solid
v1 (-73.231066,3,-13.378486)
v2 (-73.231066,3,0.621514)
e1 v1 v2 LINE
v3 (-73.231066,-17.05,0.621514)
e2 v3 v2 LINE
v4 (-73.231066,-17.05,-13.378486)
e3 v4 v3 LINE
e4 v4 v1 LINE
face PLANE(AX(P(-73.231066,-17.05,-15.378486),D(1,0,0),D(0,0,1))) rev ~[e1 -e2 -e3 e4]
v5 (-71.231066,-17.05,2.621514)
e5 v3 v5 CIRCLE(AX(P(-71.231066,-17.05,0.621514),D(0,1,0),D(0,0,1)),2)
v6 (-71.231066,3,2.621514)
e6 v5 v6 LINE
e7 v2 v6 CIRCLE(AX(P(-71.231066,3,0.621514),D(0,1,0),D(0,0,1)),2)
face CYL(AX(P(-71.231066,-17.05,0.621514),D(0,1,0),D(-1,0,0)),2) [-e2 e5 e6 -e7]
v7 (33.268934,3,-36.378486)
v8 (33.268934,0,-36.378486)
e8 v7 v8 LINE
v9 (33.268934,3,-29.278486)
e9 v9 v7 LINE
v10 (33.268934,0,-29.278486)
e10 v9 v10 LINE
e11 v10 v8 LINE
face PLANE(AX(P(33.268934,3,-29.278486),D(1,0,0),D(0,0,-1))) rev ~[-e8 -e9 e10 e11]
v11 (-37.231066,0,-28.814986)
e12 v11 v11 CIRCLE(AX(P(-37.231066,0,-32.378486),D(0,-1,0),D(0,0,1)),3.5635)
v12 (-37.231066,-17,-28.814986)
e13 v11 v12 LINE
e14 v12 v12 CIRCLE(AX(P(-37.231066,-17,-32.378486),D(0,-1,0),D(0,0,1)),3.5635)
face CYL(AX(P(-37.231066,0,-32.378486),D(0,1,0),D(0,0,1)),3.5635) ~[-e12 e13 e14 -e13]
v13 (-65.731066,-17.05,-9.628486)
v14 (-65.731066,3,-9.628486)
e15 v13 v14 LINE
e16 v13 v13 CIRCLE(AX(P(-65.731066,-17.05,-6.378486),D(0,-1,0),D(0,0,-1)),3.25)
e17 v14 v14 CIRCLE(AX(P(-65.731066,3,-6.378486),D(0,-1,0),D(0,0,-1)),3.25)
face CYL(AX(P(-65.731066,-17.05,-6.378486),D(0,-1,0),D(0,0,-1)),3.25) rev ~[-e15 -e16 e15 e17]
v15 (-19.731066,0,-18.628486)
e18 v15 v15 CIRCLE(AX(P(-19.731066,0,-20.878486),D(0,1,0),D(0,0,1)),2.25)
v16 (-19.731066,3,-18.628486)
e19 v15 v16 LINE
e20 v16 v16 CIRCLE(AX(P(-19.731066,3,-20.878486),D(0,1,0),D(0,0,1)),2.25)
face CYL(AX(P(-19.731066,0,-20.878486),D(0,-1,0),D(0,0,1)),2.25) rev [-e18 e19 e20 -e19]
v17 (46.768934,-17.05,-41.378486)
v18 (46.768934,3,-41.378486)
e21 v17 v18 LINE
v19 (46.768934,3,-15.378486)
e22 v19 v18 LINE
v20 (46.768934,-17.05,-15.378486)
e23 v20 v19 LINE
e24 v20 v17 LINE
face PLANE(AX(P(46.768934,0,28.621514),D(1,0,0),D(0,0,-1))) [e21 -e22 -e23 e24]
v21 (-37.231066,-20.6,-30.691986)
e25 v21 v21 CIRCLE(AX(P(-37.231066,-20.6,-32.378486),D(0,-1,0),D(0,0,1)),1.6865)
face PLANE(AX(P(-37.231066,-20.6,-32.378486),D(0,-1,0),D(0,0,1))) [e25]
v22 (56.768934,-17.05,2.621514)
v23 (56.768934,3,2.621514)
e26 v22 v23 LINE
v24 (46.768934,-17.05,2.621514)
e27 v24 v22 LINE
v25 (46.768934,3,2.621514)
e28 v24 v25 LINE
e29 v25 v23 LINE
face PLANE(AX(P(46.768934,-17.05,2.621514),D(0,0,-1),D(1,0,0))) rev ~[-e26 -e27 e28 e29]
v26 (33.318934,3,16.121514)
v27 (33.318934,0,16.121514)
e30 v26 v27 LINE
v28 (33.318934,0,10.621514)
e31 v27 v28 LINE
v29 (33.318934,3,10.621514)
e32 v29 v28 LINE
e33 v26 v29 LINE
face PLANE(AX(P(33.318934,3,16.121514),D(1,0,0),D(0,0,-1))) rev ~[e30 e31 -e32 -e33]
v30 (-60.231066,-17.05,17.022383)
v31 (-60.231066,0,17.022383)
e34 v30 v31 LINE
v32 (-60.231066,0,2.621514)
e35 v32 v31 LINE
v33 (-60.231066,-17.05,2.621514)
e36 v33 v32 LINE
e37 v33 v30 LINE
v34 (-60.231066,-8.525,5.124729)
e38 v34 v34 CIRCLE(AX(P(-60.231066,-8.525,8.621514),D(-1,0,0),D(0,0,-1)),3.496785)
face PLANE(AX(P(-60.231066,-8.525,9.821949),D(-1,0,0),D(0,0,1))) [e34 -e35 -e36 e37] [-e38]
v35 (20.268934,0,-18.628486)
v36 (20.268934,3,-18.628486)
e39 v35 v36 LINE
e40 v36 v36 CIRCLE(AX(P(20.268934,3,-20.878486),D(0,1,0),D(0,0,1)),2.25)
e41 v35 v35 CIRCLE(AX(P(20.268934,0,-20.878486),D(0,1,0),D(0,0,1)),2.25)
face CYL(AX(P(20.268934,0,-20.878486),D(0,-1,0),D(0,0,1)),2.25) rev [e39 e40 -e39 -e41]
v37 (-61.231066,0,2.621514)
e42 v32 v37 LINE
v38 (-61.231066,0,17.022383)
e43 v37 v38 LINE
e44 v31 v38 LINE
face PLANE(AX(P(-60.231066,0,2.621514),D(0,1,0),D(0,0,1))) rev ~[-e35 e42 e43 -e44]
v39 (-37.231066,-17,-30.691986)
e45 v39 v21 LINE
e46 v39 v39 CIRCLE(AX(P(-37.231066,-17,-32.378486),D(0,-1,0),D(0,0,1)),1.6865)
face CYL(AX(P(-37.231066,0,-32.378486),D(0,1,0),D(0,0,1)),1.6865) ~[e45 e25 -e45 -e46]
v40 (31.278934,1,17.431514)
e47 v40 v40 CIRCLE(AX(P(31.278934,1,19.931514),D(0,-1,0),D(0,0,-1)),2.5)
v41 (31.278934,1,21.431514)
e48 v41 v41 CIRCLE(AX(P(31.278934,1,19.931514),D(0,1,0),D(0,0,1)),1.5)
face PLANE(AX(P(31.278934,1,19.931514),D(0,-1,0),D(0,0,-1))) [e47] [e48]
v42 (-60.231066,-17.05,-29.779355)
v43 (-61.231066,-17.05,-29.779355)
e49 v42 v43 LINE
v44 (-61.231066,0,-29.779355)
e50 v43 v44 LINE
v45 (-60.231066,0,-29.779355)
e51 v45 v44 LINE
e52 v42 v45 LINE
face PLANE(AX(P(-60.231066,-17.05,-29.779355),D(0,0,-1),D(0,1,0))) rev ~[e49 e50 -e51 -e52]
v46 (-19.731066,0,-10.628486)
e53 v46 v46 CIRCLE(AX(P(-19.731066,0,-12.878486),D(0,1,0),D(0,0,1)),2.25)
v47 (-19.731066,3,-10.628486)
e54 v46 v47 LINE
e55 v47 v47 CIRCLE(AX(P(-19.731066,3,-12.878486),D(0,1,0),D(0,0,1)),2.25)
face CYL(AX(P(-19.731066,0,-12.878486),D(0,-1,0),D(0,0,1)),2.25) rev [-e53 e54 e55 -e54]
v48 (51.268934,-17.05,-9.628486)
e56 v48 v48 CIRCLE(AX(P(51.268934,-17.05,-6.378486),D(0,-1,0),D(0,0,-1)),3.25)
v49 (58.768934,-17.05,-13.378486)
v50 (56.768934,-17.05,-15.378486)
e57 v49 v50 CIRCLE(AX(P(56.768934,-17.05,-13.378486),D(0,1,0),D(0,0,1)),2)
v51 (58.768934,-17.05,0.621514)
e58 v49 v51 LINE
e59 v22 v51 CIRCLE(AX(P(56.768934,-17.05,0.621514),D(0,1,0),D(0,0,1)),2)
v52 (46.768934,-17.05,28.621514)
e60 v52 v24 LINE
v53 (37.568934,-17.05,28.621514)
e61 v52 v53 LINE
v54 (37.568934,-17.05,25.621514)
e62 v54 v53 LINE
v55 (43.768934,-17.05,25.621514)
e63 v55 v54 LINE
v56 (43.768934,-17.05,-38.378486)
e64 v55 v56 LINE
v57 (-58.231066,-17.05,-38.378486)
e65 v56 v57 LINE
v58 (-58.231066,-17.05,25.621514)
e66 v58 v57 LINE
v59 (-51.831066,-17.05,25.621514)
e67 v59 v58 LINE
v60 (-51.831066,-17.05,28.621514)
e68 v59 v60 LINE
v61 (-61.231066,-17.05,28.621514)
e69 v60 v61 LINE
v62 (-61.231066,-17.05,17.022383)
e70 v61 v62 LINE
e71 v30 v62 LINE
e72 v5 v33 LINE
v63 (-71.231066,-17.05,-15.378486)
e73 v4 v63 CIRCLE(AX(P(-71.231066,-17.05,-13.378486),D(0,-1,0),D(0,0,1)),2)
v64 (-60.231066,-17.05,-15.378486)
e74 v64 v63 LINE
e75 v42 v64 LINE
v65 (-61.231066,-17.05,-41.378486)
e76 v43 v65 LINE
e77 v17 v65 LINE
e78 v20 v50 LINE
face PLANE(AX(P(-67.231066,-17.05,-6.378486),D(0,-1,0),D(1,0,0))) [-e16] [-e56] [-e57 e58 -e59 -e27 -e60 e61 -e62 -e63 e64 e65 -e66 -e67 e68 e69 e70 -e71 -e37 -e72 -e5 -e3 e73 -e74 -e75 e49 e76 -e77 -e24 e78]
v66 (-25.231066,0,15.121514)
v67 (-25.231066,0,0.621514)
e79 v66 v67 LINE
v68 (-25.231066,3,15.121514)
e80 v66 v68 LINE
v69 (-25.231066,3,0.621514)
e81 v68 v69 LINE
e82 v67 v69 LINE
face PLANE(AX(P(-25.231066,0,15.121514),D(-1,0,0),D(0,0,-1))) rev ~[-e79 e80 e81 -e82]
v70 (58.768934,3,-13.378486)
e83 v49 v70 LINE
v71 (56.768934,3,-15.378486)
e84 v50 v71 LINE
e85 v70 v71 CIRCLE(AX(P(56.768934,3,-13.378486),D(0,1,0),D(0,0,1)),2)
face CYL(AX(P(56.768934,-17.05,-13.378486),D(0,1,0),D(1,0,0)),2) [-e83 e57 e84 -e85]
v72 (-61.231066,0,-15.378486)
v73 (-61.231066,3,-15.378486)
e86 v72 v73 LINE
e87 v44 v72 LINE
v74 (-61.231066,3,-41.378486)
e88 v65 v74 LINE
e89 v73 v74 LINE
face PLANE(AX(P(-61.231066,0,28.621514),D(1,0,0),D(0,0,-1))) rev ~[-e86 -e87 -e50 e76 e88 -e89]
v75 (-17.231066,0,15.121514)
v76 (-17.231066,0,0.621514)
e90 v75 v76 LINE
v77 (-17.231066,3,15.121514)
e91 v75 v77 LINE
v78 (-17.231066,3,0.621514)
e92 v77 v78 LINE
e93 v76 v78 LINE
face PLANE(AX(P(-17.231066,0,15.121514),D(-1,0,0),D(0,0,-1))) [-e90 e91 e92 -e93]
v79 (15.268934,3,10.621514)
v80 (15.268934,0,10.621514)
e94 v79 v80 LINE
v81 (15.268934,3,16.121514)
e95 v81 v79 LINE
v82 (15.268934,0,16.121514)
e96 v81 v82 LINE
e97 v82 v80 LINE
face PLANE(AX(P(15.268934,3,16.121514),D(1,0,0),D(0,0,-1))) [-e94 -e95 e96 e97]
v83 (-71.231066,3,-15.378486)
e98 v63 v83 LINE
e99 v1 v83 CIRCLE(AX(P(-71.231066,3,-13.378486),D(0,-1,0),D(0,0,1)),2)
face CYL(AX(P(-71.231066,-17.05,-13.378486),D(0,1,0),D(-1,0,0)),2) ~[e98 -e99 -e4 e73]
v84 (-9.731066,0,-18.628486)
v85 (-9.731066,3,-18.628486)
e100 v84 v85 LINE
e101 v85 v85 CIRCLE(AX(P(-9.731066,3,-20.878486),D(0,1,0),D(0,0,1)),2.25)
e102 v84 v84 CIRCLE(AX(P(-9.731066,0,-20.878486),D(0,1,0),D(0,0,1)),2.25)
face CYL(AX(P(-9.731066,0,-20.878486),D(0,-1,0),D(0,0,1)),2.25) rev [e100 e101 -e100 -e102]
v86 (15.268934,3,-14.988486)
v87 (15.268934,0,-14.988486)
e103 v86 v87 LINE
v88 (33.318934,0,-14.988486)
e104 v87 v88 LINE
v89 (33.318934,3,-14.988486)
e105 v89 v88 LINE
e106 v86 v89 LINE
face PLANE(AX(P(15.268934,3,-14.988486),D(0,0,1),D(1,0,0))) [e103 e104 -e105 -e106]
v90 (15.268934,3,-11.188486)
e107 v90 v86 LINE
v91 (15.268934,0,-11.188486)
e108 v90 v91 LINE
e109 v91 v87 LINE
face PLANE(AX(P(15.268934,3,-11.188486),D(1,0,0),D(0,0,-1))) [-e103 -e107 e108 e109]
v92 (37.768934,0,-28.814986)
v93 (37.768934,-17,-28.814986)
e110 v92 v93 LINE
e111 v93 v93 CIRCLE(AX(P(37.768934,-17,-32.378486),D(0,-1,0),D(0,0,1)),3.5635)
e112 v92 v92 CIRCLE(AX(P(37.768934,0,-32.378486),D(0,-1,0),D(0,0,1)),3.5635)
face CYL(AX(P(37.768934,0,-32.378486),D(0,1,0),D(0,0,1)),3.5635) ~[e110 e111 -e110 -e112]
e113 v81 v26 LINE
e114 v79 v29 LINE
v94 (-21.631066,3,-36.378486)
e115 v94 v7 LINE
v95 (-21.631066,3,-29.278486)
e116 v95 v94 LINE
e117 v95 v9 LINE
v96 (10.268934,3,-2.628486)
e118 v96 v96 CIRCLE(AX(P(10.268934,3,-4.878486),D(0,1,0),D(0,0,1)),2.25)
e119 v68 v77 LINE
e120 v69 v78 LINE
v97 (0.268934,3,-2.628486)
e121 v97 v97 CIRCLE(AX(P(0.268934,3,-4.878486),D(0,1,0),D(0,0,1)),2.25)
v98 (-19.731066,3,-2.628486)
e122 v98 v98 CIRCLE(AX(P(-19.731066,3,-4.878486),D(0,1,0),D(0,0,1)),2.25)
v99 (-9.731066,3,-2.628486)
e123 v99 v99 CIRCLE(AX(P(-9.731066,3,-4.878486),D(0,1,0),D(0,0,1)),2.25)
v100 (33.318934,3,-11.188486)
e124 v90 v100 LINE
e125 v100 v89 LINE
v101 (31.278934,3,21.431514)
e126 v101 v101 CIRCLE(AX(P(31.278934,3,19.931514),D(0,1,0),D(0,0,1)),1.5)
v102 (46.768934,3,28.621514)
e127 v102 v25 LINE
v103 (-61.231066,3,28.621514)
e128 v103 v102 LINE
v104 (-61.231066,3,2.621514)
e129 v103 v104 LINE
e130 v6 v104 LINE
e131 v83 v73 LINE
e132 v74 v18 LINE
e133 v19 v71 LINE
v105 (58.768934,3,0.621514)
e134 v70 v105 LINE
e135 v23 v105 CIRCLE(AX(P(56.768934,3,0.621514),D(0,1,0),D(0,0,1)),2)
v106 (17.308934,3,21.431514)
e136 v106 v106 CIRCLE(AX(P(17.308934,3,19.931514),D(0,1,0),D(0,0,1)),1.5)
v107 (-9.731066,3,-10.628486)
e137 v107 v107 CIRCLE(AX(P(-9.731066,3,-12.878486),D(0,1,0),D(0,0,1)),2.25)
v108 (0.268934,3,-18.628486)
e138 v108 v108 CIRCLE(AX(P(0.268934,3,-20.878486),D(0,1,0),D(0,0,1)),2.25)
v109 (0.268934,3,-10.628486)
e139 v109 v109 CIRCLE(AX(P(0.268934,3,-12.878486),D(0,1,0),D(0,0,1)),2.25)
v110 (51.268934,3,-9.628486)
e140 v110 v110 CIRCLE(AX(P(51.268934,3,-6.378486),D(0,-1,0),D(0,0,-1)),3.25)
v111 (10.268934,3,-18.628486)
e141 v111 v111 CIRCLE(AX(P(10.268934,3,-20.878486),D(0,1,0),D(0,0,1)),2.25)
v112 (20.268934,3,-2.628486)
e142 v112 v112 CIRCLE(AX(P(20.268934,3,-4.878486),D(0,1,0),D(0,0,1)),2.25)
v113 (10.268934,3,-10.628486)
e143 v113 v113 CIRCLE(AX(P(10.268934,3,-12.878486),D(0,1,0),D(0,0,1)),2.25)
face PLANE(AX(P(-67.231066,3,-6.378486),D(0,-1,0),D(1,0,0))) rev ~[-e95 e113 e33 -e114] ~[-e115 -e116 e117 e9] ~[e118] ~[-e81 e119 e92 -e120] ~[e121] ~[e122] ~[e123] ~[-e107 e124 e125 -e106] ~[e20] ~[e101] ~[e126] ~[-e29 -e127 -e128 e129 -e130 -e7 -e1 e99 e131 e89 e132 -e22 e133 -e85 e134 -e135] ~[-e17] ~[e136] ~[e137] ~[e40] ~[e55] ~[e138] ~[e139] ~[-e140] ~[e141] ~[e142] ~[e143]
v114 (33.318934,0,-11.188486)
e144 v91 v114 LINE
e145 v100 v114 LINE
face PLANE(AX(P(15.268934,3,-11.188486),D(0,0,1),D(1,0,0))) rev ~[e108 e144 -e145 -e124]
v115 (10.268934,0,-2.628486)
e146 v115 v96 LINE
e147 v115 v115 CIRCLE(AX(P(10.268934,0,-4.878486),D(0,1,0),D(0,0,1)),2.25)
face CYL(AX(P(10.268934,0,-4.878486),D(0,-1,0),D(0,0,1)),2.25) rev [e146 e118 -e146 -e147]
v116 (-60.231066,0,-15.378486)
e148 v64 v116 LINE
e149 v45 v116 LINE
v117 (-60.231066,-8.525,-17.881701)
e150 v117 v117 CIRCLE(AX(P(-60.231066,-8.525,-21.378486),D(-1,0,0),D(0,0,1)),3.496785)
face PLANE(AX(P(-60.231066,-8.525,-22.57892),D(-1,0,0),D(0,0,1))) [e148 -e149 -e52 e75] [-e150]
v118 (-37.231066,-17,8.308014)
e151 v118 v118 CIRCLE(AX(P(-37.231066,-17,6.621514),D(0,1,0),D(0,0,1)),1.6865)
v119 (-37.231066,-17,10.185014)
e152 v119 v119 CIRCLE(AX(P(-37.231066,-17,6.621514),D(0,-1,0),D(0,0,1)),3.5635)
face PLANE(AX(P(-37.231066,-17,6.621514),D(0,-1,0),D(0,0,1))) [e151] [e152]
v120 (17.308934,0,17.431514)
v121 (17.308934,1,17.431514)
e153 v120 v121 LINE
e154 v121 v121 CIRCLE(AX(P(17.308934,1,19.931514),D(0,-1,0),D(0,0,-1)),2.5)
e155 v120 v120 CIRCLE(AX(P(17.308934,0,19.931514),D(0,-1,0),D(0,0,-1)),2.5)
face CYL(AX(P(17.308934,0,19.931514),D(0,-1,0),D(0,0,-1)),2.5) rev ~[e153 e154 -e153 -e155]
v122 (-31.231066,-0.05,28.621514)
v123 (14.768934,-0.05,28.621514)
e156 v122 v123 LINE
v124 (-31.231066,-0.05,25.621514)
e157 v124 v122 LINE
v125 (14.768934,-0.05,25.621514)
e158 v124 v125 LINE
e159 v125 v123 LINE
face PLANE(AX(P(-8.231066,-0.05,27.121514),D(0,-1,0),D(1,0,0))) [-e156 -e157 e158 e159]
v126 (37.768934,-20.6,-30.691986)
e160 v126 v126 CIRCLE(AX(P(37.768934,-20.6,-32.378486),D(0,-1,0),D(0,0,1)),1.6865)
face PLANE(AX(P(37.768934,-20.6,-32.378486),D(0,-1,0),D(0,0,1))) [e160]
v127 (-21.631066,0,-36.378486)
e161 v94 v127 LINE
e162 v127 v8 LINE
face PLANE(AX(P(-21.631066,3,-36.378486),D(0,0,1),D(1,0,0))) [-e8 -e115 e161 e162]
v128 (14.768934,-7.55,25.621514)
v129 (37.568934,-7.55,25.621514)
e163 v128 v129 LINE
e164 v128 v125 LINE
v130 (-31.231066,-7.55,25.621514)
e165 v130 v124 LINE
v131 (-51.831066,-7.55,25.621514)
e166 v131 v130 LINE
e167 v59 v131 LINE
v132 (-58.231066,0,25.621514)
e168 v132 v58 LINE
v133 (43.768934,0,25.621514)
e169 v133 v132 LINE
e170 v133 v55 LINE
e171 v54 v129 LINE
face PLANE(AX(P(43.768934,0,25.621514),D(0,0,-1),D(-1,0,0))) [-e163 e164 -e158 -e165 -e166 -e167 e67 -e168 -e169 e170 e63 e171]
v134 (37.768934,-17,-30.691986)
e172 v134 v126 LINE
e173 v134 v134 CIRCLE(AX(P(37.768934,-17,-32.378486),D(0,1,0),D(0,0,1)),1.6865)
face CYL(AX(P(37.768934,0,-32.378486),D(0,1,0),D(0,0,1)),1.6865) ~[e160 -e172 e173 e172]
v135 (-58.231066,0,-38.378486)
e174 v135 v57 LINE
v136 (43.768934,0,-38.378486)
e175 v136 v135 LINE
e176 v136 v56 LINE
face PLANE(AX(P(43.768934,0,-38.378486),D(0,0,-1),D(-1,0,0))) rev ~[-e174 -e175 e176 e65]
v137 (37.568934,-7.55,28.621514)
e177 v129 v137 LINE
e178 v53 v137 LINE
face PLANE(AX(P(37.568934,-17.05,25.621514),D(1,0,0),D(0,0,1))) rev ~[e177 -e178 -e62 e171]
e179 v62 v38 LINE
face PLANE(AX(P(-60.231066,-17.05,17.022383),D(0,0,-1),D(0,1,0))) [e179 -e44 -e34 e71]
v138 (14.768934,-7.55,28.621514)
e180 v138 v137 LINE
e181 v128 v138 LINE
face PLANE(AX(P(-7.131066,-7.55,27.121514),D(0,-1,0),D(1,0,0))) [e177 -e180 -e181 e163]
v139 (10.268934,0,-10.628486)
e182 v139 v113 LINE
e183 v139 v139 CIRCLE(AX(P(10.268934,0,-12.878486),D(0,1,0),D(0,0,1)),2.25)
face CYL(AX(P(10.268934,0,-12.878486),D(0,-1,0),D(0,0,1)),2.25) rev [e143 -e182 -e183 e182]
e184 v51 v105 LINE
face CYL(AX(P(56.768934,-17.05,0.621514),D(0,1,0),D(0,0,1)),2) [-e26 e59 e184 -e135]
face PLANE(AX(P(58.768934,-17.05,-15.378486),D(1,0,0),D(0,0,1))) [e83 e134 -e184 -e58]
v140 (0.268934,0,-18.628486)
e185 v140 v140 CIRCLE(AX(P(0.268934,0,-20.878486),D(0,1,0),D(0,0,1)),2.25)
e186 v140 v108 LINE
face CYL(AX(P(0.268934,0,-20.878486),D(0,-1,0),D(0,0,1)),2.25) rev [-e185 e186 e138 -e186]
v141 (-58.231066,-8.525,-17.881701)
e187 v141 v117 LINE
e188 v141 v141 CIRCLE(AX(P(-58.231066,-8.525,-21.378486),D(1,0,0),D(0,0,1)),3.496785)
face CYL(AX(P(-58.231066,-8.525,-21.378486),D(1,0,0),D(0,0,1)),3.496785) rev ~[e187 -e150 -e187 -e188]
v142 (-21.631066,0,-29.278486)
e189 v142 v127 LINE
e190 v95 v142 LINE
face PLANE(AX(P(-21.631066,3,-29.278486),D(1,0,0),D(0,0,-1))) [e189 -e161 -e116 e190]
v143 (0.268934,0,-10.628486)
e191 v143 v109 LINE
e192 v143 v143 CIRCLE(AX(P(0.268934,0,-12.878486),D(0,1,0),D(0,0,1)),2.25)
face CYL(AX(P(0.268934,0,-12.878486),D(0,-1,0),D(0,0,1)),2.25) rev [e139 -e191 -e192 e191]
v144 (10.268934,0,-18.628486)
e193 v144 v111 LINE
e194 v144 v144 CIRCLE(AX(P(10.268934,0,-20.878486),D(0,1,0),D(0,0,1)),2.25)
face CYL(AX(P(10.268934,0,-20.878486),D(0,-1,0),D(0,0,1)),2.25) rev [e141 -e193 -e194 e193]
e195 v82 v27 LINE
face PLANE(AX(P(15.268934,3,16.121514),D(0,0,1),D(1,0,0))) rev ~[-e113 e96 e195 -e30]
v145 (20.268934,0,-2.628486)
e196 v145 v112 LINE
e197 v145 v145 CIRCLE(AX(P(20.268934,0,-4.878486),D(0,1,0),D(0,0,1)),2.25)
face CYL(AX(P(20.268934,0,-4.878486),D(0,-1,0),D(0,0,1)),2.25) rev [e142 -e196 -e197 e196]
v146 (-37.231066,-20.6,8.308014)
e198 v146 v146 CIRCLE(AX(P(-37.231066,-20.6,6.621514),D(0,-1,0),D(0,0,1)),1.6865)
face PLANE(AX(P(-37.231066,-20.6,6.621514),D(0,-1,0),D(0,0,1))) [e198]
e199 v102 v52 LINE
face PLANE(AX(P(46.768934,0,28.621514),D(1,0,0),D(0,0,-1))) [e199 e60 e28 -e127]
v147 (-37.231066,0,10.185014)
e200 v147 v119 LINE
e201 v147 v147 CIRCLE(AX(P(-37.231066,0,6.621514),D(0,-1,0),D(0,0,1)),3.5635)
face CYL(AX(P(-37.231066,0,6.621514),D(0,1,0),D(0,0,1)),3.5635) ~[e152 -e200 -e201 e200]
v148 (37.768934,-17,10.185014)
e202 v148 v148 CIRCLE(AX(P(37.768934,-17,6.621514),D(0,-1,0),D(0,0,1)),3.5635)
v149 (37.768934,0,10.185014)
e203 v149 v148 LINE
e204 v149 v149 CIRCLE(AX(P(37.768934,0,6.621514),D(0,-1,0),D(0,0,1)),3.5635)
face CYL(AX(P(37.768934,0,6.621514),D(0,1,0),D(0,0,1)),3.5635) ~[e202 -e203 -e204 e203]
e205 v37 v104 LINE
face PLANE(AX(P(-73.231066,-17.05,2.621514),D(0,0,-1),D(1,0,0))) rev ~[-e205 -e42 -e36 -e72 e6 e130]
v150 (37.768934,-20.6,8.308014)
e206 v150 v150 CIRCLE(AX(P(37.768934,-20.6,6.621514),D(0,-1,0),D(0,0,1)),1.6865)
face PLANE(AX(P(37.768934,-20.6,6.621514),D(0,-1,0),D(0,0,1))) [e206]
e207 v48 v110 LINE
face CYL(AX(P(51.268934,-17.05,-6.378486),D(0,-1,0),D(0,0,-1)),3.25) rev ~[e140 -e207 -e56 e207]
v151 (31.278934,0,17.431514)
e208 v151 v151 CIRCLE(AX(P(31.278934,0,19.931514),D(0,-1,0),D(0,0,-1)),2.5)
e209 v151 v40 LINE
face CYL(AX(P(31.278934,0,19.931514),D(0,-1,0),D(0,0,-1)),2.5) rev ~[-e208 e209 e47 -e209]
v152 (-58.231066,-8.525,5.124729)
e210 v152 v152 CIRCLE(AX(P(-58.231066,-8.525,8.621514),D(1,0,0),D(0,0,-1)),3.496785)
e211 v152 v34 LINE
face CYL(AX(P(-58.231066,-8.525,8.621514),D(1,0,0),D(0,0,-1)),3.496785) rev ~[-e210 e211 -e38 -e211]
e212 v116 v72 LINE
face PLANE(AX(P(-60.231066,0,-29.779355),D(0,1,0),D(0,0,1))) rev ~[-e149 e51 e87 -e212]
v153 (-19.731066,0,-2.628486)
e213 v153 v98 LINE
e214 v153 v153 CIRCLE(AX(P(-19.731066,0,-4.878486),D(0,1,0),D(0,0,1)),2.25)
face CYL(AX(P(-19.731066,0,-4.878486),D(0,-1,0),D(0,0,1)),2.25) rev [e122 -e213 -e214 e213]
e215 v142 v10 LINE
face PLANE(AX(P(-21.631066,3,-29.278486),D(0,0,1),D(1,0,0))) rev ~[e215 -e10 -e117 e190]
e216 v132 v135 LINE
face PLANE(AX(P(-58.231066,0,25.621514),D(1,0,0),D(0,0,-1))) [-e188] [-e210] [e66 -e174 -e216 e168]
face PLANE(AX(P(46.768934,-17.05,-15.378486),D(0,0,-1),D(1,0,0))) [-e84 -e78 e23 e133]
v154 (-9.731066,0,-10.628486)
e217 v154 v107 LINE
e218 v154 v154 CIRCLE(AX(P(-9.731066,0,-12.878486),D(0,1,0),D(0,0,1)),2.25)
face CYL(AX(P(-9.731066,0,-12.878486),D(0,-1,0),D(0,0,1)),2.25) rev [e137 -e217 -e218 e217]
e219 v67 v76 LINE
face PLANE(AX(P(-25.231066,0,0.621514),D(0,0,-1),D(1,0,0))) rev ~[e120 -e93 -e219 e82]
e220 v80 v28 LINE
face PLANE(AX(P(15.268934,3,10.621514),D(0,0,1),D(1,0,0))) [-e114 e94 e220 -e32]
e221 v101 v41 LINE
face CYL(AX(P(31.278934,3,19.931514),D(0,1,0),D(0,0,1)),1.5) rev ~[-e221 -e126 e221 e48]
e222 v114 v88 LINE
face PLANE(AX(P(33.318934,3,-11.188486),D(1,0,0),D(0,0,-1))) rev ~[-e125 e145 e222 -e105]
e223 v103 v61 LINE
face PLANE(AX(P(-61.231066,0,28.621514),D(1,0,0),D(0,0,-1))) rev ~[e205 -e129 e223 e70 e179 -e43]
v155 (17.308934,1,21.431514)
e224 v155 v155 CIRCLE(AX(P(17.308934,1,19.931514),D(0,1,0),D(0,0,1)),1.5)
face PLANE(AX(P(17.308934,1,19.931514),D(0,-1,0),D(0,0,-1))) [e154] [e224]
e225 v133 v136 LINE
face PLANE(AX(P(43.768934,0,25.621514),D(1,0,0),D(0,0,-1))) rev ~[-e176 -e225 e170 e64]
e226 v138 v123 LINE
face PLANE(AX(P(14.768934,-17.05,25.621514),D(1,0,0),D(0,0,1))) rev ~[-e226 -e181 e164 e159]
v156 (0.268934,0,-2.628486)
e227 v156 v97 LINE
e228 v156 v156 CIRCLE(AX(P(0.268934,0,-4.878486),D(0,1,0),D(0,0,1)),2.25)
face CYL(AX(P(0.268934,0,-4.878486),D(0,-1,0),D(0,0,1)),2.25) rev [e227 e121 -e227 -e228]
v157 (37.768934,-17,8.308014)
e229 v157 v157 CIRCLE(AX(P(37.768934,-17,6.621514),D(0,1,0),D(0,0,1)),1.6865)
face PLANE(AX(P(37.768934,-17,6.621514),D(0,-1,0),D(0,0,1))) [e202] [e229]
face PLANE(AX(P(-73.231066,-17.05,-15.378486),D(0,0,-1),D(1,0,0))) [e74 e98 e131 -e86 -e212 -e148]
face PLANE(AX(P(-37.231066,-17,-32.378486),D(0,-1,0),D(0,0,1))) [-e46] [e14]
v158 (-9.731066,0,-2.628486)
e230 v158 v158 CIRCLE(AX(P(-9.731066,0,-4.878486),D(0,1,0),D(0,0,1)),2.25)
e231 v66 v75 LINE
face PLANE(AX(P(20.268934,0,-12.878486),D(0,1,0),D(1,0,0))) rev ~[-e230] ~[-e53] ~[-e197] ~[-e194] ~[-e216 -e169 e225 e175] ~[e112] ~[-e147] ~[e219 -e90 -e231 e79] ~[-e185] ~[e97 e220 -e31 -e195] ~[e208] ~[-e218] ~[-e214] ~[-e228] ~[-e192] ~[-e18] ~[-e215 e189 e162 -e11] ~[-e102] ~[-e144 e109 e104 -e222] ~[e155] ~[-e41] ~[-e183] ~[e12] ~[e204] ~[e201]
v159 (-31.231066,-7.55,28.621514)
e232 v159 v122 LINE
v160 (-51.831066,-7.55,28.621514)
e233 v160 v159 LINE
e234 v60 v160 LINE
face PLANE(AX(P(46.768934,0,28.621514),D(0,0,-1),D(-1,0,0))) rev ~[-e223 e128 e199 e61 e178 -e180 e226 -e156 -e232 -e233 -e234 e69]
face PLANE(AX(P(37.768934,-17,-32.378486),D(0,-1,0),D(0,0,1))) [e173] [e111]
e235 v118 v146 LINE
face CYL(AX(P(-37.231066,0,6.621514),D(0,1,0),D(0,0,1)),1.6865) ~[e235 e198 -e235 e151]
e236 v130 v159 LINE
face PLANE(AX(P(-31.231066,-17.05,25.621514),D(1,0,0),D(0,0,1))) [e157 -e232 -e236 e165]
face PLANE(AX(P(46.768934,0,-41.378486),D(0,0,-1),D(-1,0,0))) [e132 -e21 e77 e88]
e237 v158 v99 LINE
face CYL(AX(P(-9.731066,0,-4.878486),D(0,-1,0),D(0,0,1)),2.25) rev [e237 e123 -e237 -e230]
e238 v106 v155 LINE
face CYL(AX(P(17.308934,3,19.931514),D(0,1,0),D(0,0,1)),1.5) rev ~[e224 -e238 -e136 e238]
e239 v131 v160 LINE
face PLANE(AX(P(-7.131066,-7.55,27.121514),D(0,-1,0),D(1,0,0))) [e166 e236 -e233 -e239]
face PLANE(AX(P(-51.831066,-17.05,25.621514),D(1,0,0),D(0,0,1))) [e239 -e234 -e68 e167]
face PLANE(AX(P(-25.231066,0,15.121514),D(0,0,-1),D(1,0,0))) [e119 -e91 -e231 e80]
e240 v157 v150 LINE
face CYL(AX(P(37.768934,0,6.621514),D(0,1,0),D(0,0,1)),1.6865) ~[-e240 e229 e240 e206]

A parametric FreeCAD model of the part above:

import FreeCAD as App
import Part
import Sketcher


def edges_at(feature, points):
    """Names of the edges that pass closest to the given points."""
    edges = feature.Shape.Edges
    near = lambda p: min(range(len(edges)), key=lambda i: edges[i].distToShape(Part.Vertex(*p))[0])
    return sorted({f"Edge{near(p) + 1}" for p in points})

doc = App.newDocument("Part")
body = doc.addObject("PartDesign::Body", "Body")

# Sketch on XZ plane
sketch1 = body.newObject("Sketcher::SketchObject", "Sketch")
sketch1.AttachmentSupport = (doc.getObject("XZ_Plane"), [""])
sketch1.MapMode = "FlatFace"
sketch1.addGeometry([
    Part.LineSegment(App.Vector(-61.2, -41.4, 0), App.Vector(-61.2, 28.6, 0)),  # 0
    Part.LineSegment(App.Vector(-61.2, 28.6, 0), App.Vector(46.8, 28.6, 0)),  # 1
    Part.LineSegment(App.Vector(46.8, 28.6, 0), App.Vector(46.8, -41.4, 0)),  # 2
    Part.LineSegment(App.Vector(46.8, -41.4, 0), App.Vector(-61.2, -41.4, 0)),  # 3
    Part.LineSegment(App.Vector(-17.2, 15.1, 0), App.Vector(-25.2, 15.1, 0)),  # 4
    Part.LineSegment(App.Vector(-25.2, 15.1, 0), App.Vector(-25.2, 0.6, 0)),  # 5
    Part.LineSegment(App.Vector(-25.2, 0.6, 0), App.Vector(-17.2, 0.6, 0)),  # 6
    Part.LineSegment(App.Vector(-17.2, 0.6, 0), App.Vector(-17.2, 15.1, 0)),  # 7
    Part.Circle(App.Vector(-19.7, -4.9, 0), App.Vector(0, 0, 1), 2.2),  # 8
    Part.Circle(App.Vector(-19.7, -12.9, 0), App.Vector(0, 0, 1), 2.2),  # 9
    Part.Circle(App.Vector(-9.7, -4.9, 0), App.Vector(0, 0, 1), 2.2),  # 10
    Part.Circle(App.Vector(-9.7, -12.9, 0), App.Vector(0, 0, 1), 2.2),  # 11
    Part.Circle(App.Vector(-19.7, -20.9, 0), App.Vector(0, 0, 1), 2.2),  # 12
    Part.Circle(App.Vector(-9.7, -20.9, 0), App.Vector(0, 0, 1), 2.2),  # 13
    Part.Circle(App.Vector(0.3, -4.9, 0), App.Vector(0, 0, 1), 2.2),  # 14
    Part.Circle(App.Vector(10.3, -4.9, 0), App.Vector(0, 0, 1), 2.2),  # 15
    Part.Circle(App.Vector(0.3, -12.9, 0), App.Vector(0, 0, 1), 2.2),  # 16
    Part.Circle(App.Vector(10.3, -12.9, 0), App.Vector(0, 0, 1), 2.2),  # 17
    Part.Circle(App.Vector(20.3, -4.9, 0), App.Vector(0, 0, 1), 2.2),  # 18
    Part.Circle(App.Vector(0.3, -20.9, 0), App.Vector(0, 0, 1), 2.2),  # 19
    Part.Circle(App.Vector(10.3, -20.9, 0), App.Vector(0, 0, 1), 2.2),  # 20
    Part.Circle(App.Vector(20.3, -20.9, 0), App.Vector(0, 0, 1), 2.2),  # 21
], False)
sketch1.addConstraint([
    Sketcher.Constraint("Coincident", 0, 2, 1, 1),
    Sketcher.Constraint("Coincident", 1, 2, 2, 1),
    Sketcher.Constraint("Coincident", 2, 2, 3, 1),
    Sketcher.Constraint("Coincident", 3, 2, 0, 1),
    Sketcher.Constraint("Coincident", 4, 2, 5, 1),
    Sketcher.Constraint("Coincident", 5, 2, 6, 1),
    Sketcher.Constraint("Coincident", 6, 2, 7, 1),
    Sketcher.Constraint("Coincident", 7, 2, 4, 1),
    Sketcher.Constraint("Vertical", 0),
    Sketcher.Constraint("Horizontal", 1),
    Sketcher.Constraint("Vertical", 2),
    Sketcher.Constraint("Horizontal", 3),
    Sketcher.Constraint("Horizontal", 4),
    Sketcher.Constraint("Vertical", 5),
    Sketcher.Constraint("Horizontal", 6),
    Sketcher.Constraint("Vertical", 7),
    Sketcher.Constraint("Equal", 8, 9),
    Sketcher.Constraint("Equal", 9, 10),
    Sketcher.Constraint("Equal", 10, 11),
    Sketcher.Constraint("Equal", 11, 12),
    Sketcher.Constraint("Equal", 12, 13),
    Sketcher.Constraint("Equal", 13, 14),
    Sketcher.Constraint("Equal", 14, 15),
    Sketcher.Constraint("Equal", 15, 16),
    Sketcher.Constraint("Equal", 16, 17),
    Sketcher.Constraint("Equal", 17, 18),
    Sketcher.Constraint("Equal", 18, 19),
    Sketcher.Constraint("Equal", 19, 20),
    Sketcher.Constraint("Equal", 20, 21),
    Sketcher.Constraint("Horizontal", 8, 3, 10, 3),
    Sketcher.Constraint("Horizontal", 9, 3, 11, 3),
    Sketcher.Constraint("Horizontal", 12, 3, 13, 3),
    Sketcher.Constraint("Horizontal", 10, 3, 14, 3),
    Sketcher.Constraint("Horizontal", 14, 3, 15, 3),
    Sketcher.Constraint("Horizontal", 11, 3, 16, 3),
    Sketcher.Constraint("Horizontal", 16, 3, 17, 3),
    Sketcher.Constraint("Horizontal", 15, 3, 18, 3),
    Sketcher.Constraint("Horizontal", 13, 3, 19, 3),
    Sketcher.Constraint("Horizontal", 19, 3, 20, 3),
    Sketcher.Constraint("Horizontal", 20, 3, 21, 3),
    Sketcher.Constraint("Vertical", 8, 3, 9, 3),
    Sketcher.Constraint("Vertical", 10, 3, 11, 3),
    Sketcher.Constraint("Vertical", 9, 3, 12, 3),
    Sketcher.Constraint("Vertical", 11, 3, 13, 3),
    Sketcher.Constraint("Vertical", 14, 3, 16, 3),
    Sketcher.Constraint("Vertical", 15, 3, 17, 3),
    Sketcher.Constraint("Vertical", 16, 3, 19, 3),
    Sketcher.Constraint("Vertical", 17, 3, 20, 3),
    Sketcher.Constraint("Vertical", 18, 3, 21, 3),
    Sketcher.Constraint("Diameter", 8, 4.5),
    Sketcher.Constraint("DistanceX", 1, 1, 1, 2, 108.0),
    Sketcher.Constraint("DistanceX", 4, 2, 4, 1, 8.0),
    Sketcher.Constraint("DistanceY", 0, 1, 0, 2, 70.0),
    Sketcher.Constraint("DistanceY", 5, 2, 5, 1, 14.5),
    Sketcher.Constraint("DistanceY", 9, 3, 8, 3, 8.0),
    Sketcher.Constraint("DistanceX", 8, 3, 10, 3, 10.0),
    Sketcher.Constraint("DistanceY", 12, 3, 9, 3, 8.0),
    Sketcher.Constraint("DistanceX", 10, 3, 14, 3, 10.0),
    Sketcher.Constraint("DistanceX", 14, 3, 15, 3, 10.0),
    Sketcher.Constraint("DistanceX", 15, 3, 18, 3, 10.0),
    Sketcher.Constraint("DistanceY", 8, 3, 4, 2, 20.0),
    Sketcher.Constraint("DistanceX", 0, 2, 8, 3, 41.5),
    Sketcher.Constraint("DistanceY", 8, 3, 0, 2, 33.5),
    Sketcher.Constraint("DistanceX", 4, 2, 8, 3, 5.5),
    Sketcher.Constraint("DistanceX", 8, 3, -1, 1, 19.731066),
    Sketcher.Constraint("DistanceY", 8, 3, -1, 1, 4.878486),
])
pad1 = body.newObject("PartDesign::Pad", "Pad")
pad1.Profile = sketch1
pad1.Length = 3
pad1.Reversed = True

# Sketch on XZ plane
sketch2 = body.newObject("Sketcher::SketchObject", "Sketch001")
sketch2.AttachmentSupport = (doc.getObject("XZ_Plane"), [""])
sketch2.MapMode = "FlatFace"
sketch2.addGeometry([
    Part.Circle(App.Vector(-37.2, -32.4, 0), App.Vector(0, 0, 1), 3.6),  # 0
    Part.Circle(App.Vector(-37.2, -32.4, 0), App.Vector(0, 0, 1), 1.7),  # 1
    Part.Circle(App.Vector(37.8, -32.4, 0), App.Vector(0, 0, 1), 3.6),  # 2
    Part.Circle(App.Vector(37.8, -32.4, 0), App.Vector(0, 0, 1), 1.7),  # 3
    Part.Circle(App.Vector(37.8, 6.6, 0), App.Vector(0, 0, 1), 3.6),  # 4
    Part.Circle(App.Vector(37.8, 6.6, 0), App.Vector(0, 0, 1), 1.7),  # 5
    Part.Circle(App.Vector(-37.2, 6.6, 0), App.Vector(0, 0, 1), 3.6),  # 6
    Part.Circle(App.Vector(-37.2, 6.6, 0), App.Vector(0, 0, 1), 1.7),  # 7
], False)
sketch2.addConstraint([
    Sketcher.Constraint("Coincident", 1, 3, 0, 3),
    Sketcher.Constraint("Coincident", 3, 3, 2, 3),
    Sketcher.Constraint("Coincident", 5, 3, 4, 3),
    Sketcher.Constraint("Coincident", 7, 3, 6, 3),
    Sketcher.Constraint("Equal", 0, 2),
    Sketcher.Constraint("Equal", 1, 3),
    Sketcher.Constraint("Equal", 2, 4),
    Sketcher.Constraint("Equal", 3, 5),
    Sketcher.Constraint("Equal", 4, 6),
    Sketcher.Constraint("Equal", 5, 7),
    Sketcher.Constraint("Horizontal", 1, 3, 2, 3),
    Sketcher.Constraint("Horizontal", 5, 3, 6, 3),
    Sketcher.Constraint("Vertical", 3, 3, 4, 3),
    Sketcher.Constraint("Vertical", 1, 3, 6, 3),
    Sketcher.Constraint("Diameter", 0, 7.127),
    Sketcher.Constraint("Diameter", 1, 3.373),
    Sketcher.Constraint("DistanceX", 0, 3, 2, 3, 75.0),
    Sketcher.Constraint("DistanceY", 2, 3, 4, 3, 39.0),
    Sketcher.Constraint("DistanceX", 0, 3, -1, 1, 37.231066),
    Sketcher.Constraint("DistanceY", 0, 3, -1, 1, 32.378486),
])
pad2 = body.newObject("PartDesign::Pad", "Pad001")
pad2.Profile = sketch2
pad2.Length = 17

# Sketch on XZ plane
sketch3 = body.newObject("Sketcher::SketchObject", "Sketch002")
sketch3.AttachmentSupport = (doc.getObject("XZ_Plane"), [""])
sketch3.MapMode = "FlatFace"
sketch3.addGeometry([
    Part.Circle(App.Vector(-37.2, -32.4, 0), App.Vector(0, 0, 1), 1.7),
    Part.Circle(App.Vector(37.8, -32.4, 0), App.Vector(0, 0, 1), 1.7),
    Part.Circle(App.Vector(37.8, 6.6, 0), App.Vector(0, 0, 1), 1.7),
    Part.Circle(App.Vector(-37.2, 6.6, 0), App.Vector(0, 0, 1), 1.7),
], False)
sketch3.addConstraint([
    Sketcher.Constraint("Equal", 0, 1),
    Sketcher.Constraint("Equal", 1, 2),
    Sketcher.Constraint("Equal", 2, 3),
    Sketcher.Constraint("Horizontal", 0, 3, 1, 3),
    Sketcher.Constraint("Horizontal", 2, 3, 3, 3),
    Sketcher.Constraint("Vertical", 1, 3, 2, 3),
    Sketcher.Constraint("Vertical", 0, 3, 3, 3),
    Sketcher.Constraint("Diameter", 0, 3.373),
    Sketcher.Constraint("DistanceX", 0, 3, 1, 3, 75.0),
    Sketcher.Constraint("DistanceY", 1, 3, 2, 3, 39.0),
    Sketcher.Constraint("DistanceX", 0, 3, -1, 1, 37.231066),
    Sketcher.Constraint("DistanceY", 0, 3, -1, 1, 32.378486),
])
pad3 = body.newObject("PartDesign::Pad", "Pad002")
pad3.Profile = sketch3
pad3.Length = 20.6

# Sketch on XZ plane
sketch4 = body.newObject("Sketcher::SketchObject", "Sketch003")
sketch4.AttachmentSupport = (doc.getObject("XZ_Plane"), [""])
sketch4.MapMode = "FlatFace"
sketch4.addGeometry([
    Part.LineSegment(App.Vector(47, -41, 0), App.Vector(47, 29, 0)),  # 0
    Part.LineSegment(App.Vector(47, 29, 0), App.Vector(-61, 29, 0)),  # 1
    Part.LineSegment(App.Vector(-61, 29, 0), App.Vector(-61, -41, 0)),  # 2
    Part.LineSegment(App.Vector(-61, -41, 0), App.Vector(47, -41, 0)),  # 3
    Part.LineSegment(App.Vector(-58, 26, 0), App.Vector(44, 26, 0)),  # 4
    Part.LineSegment(App.Vector(44, 26, 0), App.Vector(44, -38, 0)),  # 5
    Part.LineSegment(App.Vector(44, -38, 0), App.Vector(-58, -38, 0)),  # 6
    Part.LineSegment(App.Vector(-58, -38, 0), App.Vector(-58, 26, 0)),  # 7
], False)
sketch4.addConstraint([
    Sketcher.Constraint("Coincident", 0, 2, 1, 1),
    Sketcher.Constraint("Coincident", 1, 2, 2, 1),
    Sketcher.Constraint("Coincident", 2, 2, 3, 1),
    Sketcher.Constraint("Coincident", 3, 2, 0, 1),
    Sketcher.Constraint("Coincident", 4, 2, 5, 1),
    Sketcher.Constraint("Coincident", 5, 2, 6, 1),
    Sketcher.Constraint("Coincident", 6, 2, 7, 1),
    Sketcher.Constraint("Coincident", 7, 2, 4, 1),
    Sketcher.Constraint("Vertical", 0),
    Sketcher.Constraint("Horizontal", 1),
    Sketcher.Constraint("Vertical", 2),
    Sketcher.Constraint("Horizontal", 3),
    Sketcher.Constraint("Horizontal", 4),
    Sketcher.Constraint("Vertical", 5),
    Sketcher.Constraint("Horizontal", 6),
    Sketcher.Constraint("Vertical", 7),
    Sketcher.Constraint("DistanceX", 1, 2, 1, 1, 108.0),
    Sketcher.Constraint("DistanceX", 4, 1, 4, 2, 102.0),
    Sketcher.Constraint("DistanceY", 0, 1, 0, 2, 70.0),
    Sketcher.Constraint("DistanceY", 5, 2, 5, 1, 64.0),
    Sketcher.Constraint("DistanceX", 4, 2, 0, 2, 3.0),
    Sketcher.Constraint("DistanceY", 4, 2, 0, 2, 3.0),
    Sketcher.Constraint("DistanceX", -1, 1, 0, 2, 46.768934),
    Sketcher.Constraint("DistanceY", -1, 1, 0, 2, 28.621514),
])
pad4 = body.newObject("PartDesign::Pad", "Pad003")
pad4.Profile = sketch4
pad4.Length = 17.05

# Sketch on XZ plane
sketch5 = body.newObject("Sketcher::SketchObject", "Sketch004")
sketch5.AttachmentSupport = (doc.getObject("XZ_Plane"), [""])
sketch5.MapMode = "FlatFace"
sketch5.AttachmentOffset = App.Placement(App.Vector(0, 0, 17.05), App.Rotation())
sketch5.addGeometry([
    Part.LineSegment(App.Vector(-51.8, 28.6, 0), App.Vector(-51.8, 25.6, 0)),
    Part.LineSegment(App.Vector(-51.8, 25.6, 0), App.Vector(37.6, 25.6, 0)),
    Part.LineSegment(App.Vector(37.6, 25.6, 0), App.Vector(37.6, 28.6, 0)),
    Part.LineSegment(App.Vector(37.6, 28.6, 0), App.Vector(-51.8, 28.6, 0)),
], False)
sketch5.addConstraint([
    Sketcher.Constraint("Coincident", 0, 2, 1, 1),
    Sketcher.Constraint("Coincident", 1, 2, 2, 1),
    Sketcher.Constraint("Coincident", 2, 2, 3, 1),
    Sketcher.Constraint("Coincident", 3, 2, 0, 1),
    Sketcher.Constraint("Vertical", 0),
    Sketcher.Constraint("Horizontal", 1),
    Sketcher.Constraint("Vertical", 2),
    Sketcher.Constraint("Horizontal", 3),
    Sketcher.Constraint("DistanceY", 0, 2, 0, 1, 3.0),
    Sketcher.Constraint("DistanceX", 1, 1, 1, 2, 89.4),
    Sketcher.Constraint("DistanceX", 0, 2, -1, 1, 51.831066),
    Sketcher.Constraint("DistanceY", -1, 1, 0, 2, 25.621514),
])
pocket1 = body.newObject("PartDesign::Pocket", "Pocket")
pocket1.Profile = sketch5
pocket1.Length = 9.5

# Sketch on XZ plane
sketch6 = body.newObject("Sketcher::SketchObject", "Sketch005")
sketch6.AttachmentSupport = (doc.getObject("XZ_Plane"), [""])
sketch6.MapMode = "FlatFace"
sketch6.AttachmentOffset = App.Placement(App.Vector(0, 0, 17.05), App.Rotation())
sketch6.addGeometry([
    Part.LineSegment(App.Vector(-31.2, 28.6, 0), App.Vector(-31.2, 25.6, 0)),
    Part.LineSegment(App.Vector(-31.2, 25.6, 0), App.Vector(14.8, 25.6, 0)),
    Part.LineSegment(App.Vector(14.8, 25.6, 0), App.Vector(14.8, 28.6, 0)),
    Part.LineSegment(App.Vector(14.8, 28.6, 0), App.Vector(-31.2, 28.6, 0)),
], False)
sketch6.addConstraint([
    Sketcher.Constraint("Coincident", 0, 2, 1, 1),
    Sketcher.Constraint("Coincident", 1, 2, 2, 1),
    Sketcher.Constraint("Coincident", 2, 2, 3, 1),
    Sketcher.Constraint("Coincident", 3, 2, 0, 1),
    Sketcher.Constraint("Vertical", 0),
    Sketcher.Constraint("Horizontal", 1),
    Sketcher.Constraint("Vertical", 2),
    Sketcher.Constraint("Horizontal", 3),
    Sketcher.Constraint("DistanceX", 1, 1, 1, 2, 46.0),
    Sketcher.Constraint("DistanceY", 0, 2, 0, 1, 3.0),
    Sketcher.Constraint("DistanceX", 0, 2, -1, 1, 31.231066),
    Sketcher.Constraint("DistanceY", -1, 1, 0, 2, 25.621514),
])
pocket2 = body.newObject("PartDesign::Pocket", "Pocket001")
pocket2.Profile = sketch6
pocket2.Length = 17

# Sketch on XZ plane
sketch7 = body.newObject("Sketcher::SketchObject", "Sketch006")
sketch7.AttachmentSupport = (doc.getObject("XZ_Plane"), [""])
sketch7.MapMode = "FlatFace"
sketch7.AttachmentOffset = App.Placement(App.Vector(0, 0, -3), App.Rotation())
sketch7.addGeometry([
    Part.LineSegment(App.Vector(-22, -36, 0), App.Vector(-22, -29, 0)),
    Part.LineSegment(App.Vector(-22, -29, 0), App.Vector(33, -29, 0)),
    Part.LineSegment(App.Vector(33, -29, 0), App.Vector(33, -36, 0)),
    Part.LineSegment(App.Vector(33, -36, 0), App.Vector(-22, -36, 0)),
], False)
sketch7.addConstraint([
    Sketcher.Constraint("Coincident", 0, 2, 1, 1),
    Sketcher.Constraint("Coincident", 1, 2, 2, 1),
    Sketcher.Constraint("Coincident", 2, 2, 3, 1),
    Sketcher.Constraint("Coincident", 3, 2, 0, 1),
    Sketcher.Constraint("Vertical", 0),
    Sketcher.Constraint("Horizontal", 1),
    Sketcher.Constraint("Vertical", 2),
    Sketcher.Constraint("Horizontal", 3),
    Sketcher.Constraint("DistanceX", 1, 1, 1, 2, 54.9),
    Sketcher.Constraint("DistanceY", 0, 1, 0, 2, 7.1),
    Sketcher.Constraint("DistanceX", 0, 2, -1, 1, 21.631066),
    Sketcher.Constraint("DistanceY", 0, 2, -1, 1, 29.278486),
])
pocket3 = body.newObject("PartDesign::Pocket", "Pocket002")
pocket3.Profile = sketch7
pocket3.Type = "ThroughAll"
pocket3.Reversed = True

# Sketch on YZ plane
sketch8 = body.newObject("Sketcher::SketchObject", "Sketch007")
sketch8.AttachmentSupport = (doc.getObject("YZ_Plane"), [""])
sketch8.MapMode = "FlatFace"
sketch8.AttachmentOffset = App.Placement(App.Vector(0, 0, -58.231066), App.Rotation())
sketch8.addGeometry([
    Part.Circle(App.Vector(-8.5, 8.6, 0), App.Vector(0, 0, 1), 3.5),
    Part.Circle(App.Vector(-8.5, -21.4, 0), App.Vector(0, 0, 1), 3.5),
], False)
sketch8.addConstraint([
    Sketcher.Constraint("Equal", 0, 1),
    Sketcher.Constraint("Vertical", 0, 3, 1, 3),
    Sketcher.Constraint("DistanceY", 1, 3, 0, 3, 30.0),
    Sketcher.Constraint("Diameter", 0, 6.99357),
    Sketcher.Constraint("DistanceX", 0, 3, -1, 1, 8.525),
    Sketcher.Constraint("DistanceY", -1, 1, 0, 3, 8.621514),
])
pocket4 = body.newObject("PartDesign::Pocket", "Pocket003")
pocket4.Profile = sketch8
pocket4.Type = "ThroughAll"

# Sketch on YZ plane
sketch9 = body.newObject("Sketcher::SketchObject", "Sketch008")
sketch9.AttachmentSupport = (doc.getObject("YZ_Plane"), [""])
sketch9.MapMode = "FlatFace"
sketch9.AttachmentOffset = App.Placement(App.Vector(0, 0, -60.231066), App.Rotation())
sketch9.addGeometry([
    Part.LineSegment(App.Vector(0, -29.8, 0), App.Vector(-17.1, -29.8, 0)),  # 0
    Part.LineSegment(App.Vector(-17.1, -29.8, 0), App.Vector(-17.1, -15.4, 0)),  # 1
    Part.LineSegment(App.Vector(-17.1, -15.4, 0), App.Vector(0, -15.4, 0)),  # 2
    Part.LineSegment(App.Vector(0, -15.4, 0), App.Vector(0, -29.8, 0)),  # 3
    Part.Circle(App.Vector(-8.5, -21.4, 0), App.Vector(0, 0, 1), 3.5),  # 4
    Part.LineSegment(App.Vector(0, 2.6, 0), App.Vector(-17.1, 2.6, 0)),  # 5
    Part.LineSegment(App.Vector(-17.1, 2.6, 0), App.Vector(-17.1, 17, 0)),  # 6
    Part.LineSegment(App.Vector(-17.1, 17, 0), App.Vector(0, 17, 0)),  # 7
    Part.LineSegment(App.Vector(0, 17, 0), App.Vector(0, 2.6, 0)),  # 8
    Part.Circle(App.Vector(-8.5, 8.6, 0), App.Vector(0, 0, 1), 3.5),  # 9
], False)
sketch9.addConstraint([
    Sketcher.Constraint("Coincident", 0, 2, 1, 1),
    Sketcher.Constraint("Coincident", 1, 2, 2, 1),
    Sketcher.Constraint("Coincident", 2, 2, 3, 1),
    Sketcher.Constraint("Coincident", 3, 2, 0, 1),
    Sketcher.Constraint("Coincident", 5, 2, 6, 1),
    Sketcher.Constraint("Coincident", 6, 2, 7, 1),
    Sketcher.Constraint("Coincident", 7, 2, 8, 1),
    Sketcher.Constraint("Coincident", 8, 2, 5, 1),
    Sketcher.Constraint("Horizontal", 0),
    Sketcher.Constraint("Vertical", 1),
    Sketcher.Constraint("Horizontal", 2),
    Sketcher.Constraint("Vertical", 3),
    Sketcher.Constraint("Horizontal", 5),
    Sketcher.Constraint("Vertical", 6),
    Sketcher.Constraint("Horizontal", 7),
    Sketcher.Constraint("Vertical", 8),
    Sketcher.Constraint("Equal", 4, 9),
    Sketcher.Constraint("PointOnObject", 2, 2, -2),
    Sketcher.Constraint("PointOnObject", 7, 2, -2),
    Sketcher.Constraint("Vertical", 4, 3, 9, 3),
    Sketcher.Constraint("Vertical", 1, 2, 5, 2),
    Sketcher.Constraint("Equal", 3, 6),
    Sketcher.Constraint("DistanceY", 4, 3, 9, 3, 30.0),
    Sketcher.Constraint("DistanceY", 4, 3, 1, 2, 6.0),
    Sketcher.Constraint("DistanceY", 5, 2, 9, 3, 6.0),
    Sketcher.Constraint("DistanceX", 0, 2, 0, 1, 17.05),
    Sketcher.Constraint("Diameter", 4, 6.99357),
    Sketcher.Constraint("DistanceX", 4, 3, -1, 1, 8.525),
    Sketcher.Constraint("DistanceY", 1, 1, 1, 2, 14.400869),
    Sketcher.Constraint("DistanceY", 4, 3, -1, 1, 21.378486),
])
pocket5 = body.newObject("PartDesign::Pocket", "Pocket004")
pocket5.Profile = sketch9
pocket5.Length = 1

# Sketch on XZ plane
sketch10 = body.newObject("Sketcher::SketchObject", "Sketch009")
sketch10.AttachmentSupport = (doc.getObject("XZ_Plane"), [""])
sketch10.MapMode = "FlatFace"
sketch10.AttachmentOffset = App.Placement(App.Vector(0, 0, -3), App.Rotation())
sketch10.addGeometry([
    Part.Circle(App.Vector(31.3, 19.9, 0), App.Vector(0, 0, 1), 1.5),  # 0
    Part.Circle(App.Vector(17.3, 19.9, 0), App.Vector(0, 0, 1), 1.5),  # 1
    Part.LineSegment(App.Vector(15.3, -15, 0), App.Vector(15.3, -11.2, 0)),  # 2
    Part.LineSegment(App.Vector(15.3, -11.2, 0), App.Vector(33.3, -11.2, 0)),  # 3
    Part.LineSegment(App.Vector(33.3, -11.2, 0), App.Vector(33.3, -15, 0)),  # 4
    Part.LineSegment(App.Vector(33.3, -15, 0), App.Vector(15.3, -15, 0)),  # 5
    Part.LineSegment(App.Vector(15.3, 10.6, 0), App.Vector(15.3, 16.1, 0)),  # 6
    Part.LineSegment(App.Vector(15.3, 16.1, 0), App.Vector(33.3, 16.1, 0)),  # 7
    Part.LineSegment(App.Vector(33.3, 16.1, 0), App.Vector(33.3, 10.6, 0)),  # 8
    Part.LineSegment(App.Vector(33.3, 10.6, 0), App.Vector(15.3, 10.6, 0)),  # 9
], False)
sketch10.addConstraint([
    Sketcher.Constraint("Coincident", 2, 2, 3, 1),
    Sketcher.Constraint("Coincident", 3, 2, 4, 1),
    Sketcher.Constraint("Coincident", 4, 2, 5, 1),
    Sketcher.Constraint("Coincident", 5, 2, 2, 1),
    Sketcher.Constraint("Coincident", 6, 2, 7, 1),
    Sketcher.Constraint("Coincident", 7, 2, 8, 1),
    Sketcher.Constraint("Coincident", 8, 2, 9, 1),
    Sketcher.Constraint("Coincident", 9, 2, 6, 1),
    Sketcher.Constraint("Vertical", 2),
    Sketcher.Constraint("Horizontal", 3),
    Sketcher.Constraint("Vertical", 4),
    Sketcher.Constraint("Horizontal", 5),
    Sketcher.Constraint("Vertical", 6),
    Sketcher.Constraint("Horizontal", 7),
    Sketcher.Constraint("Vertical", 8),
    Sketcher.Constraint("Horizontal", 9),
    Sketcher.Constraint("Equal", 0, 1),
    Sketcher.Constraint("Horizontal", 0, 3, 1, 3),
    Sketcher.Constraint("Vertical", 5, 2, 6, 2),
    Sketcher.Constraint("Vertical", 4, 2, 7, 2),
    Sketcher.Constraint("Diameter", 0, 3.0),
    Sketcher.Constraint("DistanceY", 2, 1, 2, 2, 3.8),
    Sketcher.Constraint("DistanceY", 6, 1, 6, 2, 5.5),
    Sketcher.Constraint("DistanceX", 3, 1, 3, 2, 18.05),
    Sketcher.Constraint("DistanceX", 1, 3, 0, 3, 13.97),
    Sketcher.Constraint("DistanceX", 2, 2, 1, 3, 2.04),
    Sketcher.Constraint("DistanceY", 2, 2, 1, 3, 31.12),
    Sketcher.Constraint("DistanceY", 6, 2, 1, 3, 3.81),
    Sketcher.Constraint("DistanceX", -1, 1, 0, 3, 31.278934),
    Sketcher.Constraint("DistanceY", -1, 1, 0, 3, 19.931514),
])
pocket6 = body.newObject("PartDesign::Pocket", "Pocket005")
pocket6.Profile = sketch10
pocket6.Type = "ThroughAll"
pocket6.Reversed = True

# Sketch on XZ plane
sketch11 = body.newObject("Sketcher::SketchObject", "Sketch010")
sketch11.AttachmentSupport = (doc.getObject("XZ_Plane"), [""])
sketch11.MapMode = "FlatFace"
sketch11.addGeometry([
    Part.Circle(App.Vector(17.3, 19.9, 0), App.Vector(0, 0, 1), 2.5),
    Part.Circle(App.Vector(31.3, 19.9, 0), App.Vector(0, 0, 1), 2.5),
], False)
sketch11.addConstraint([
    Sketcher.Constraint("Equal", 0, 1),
    Sketcher.Constraint("Horizontal", 0, 3, 1, 3),
    Sketcher.Constraint("Diameter", 0, 5.0),
    Sketcher.Constraint("DistanceX", 0, 3, 1, 3, 13.97),
    Sketcher.Constraint("DistanceX", -1, 1, 0, 3, 17.308934),
    Sketcher.Constraint("DistanceY", -1, 1, 0, 3, 19.931514),
])
pocket7 = body.newObject("PartDesign::Pocket", "Pocket006")
pocket7.Profile = sketch11
pocket7.Length = 1

# Sketch on XZ plane
sketch12 = body.newObject("Sketcher::SketchObject", "Sketch011")
sketch12.AttachmentSupport = (doc.getObject("XZ_Plane"), [""])
sketch12.MapMode = "FlatFace"
sketch12.AttachmentOffset = App.Placement(App.Vector(0, 0, 17.05), App.Rotation())
sketch12.addGeometry([
    Part.LineSegment(App.Vector(-73.2, 2.6, 0), App.Vector(-73.2, -15.4, 0)),  # 0
    Part.LineSegment(App.Vector(-73.2, -15.4, 0), App.Vector(-61.2, -15.4, 0)),  # 1
    Part.LineSegment(App.Vector(-61.2, -15.4, 0), App.Vector(-61.2, 2.6, 0)),  # 2
    Part.LineSegment(App.Vector(-61.2, 2.6, 0), App.Vector(-73.2, 2.6, 0)),  # 3
    Part.Circle(App.Vector(-65.7, -6.4, 0), App.Vector(0, 0, 1), 3.2),  # 4
    Part.LineSegment(App.Vector(46.8, 2.6, 0), App.Vector(46.8, -15.4, 0)),  # 5
    Part.LineSegment(App.Vector(46.8, -15.4, 0), App.Vector(58.8, -15.4, 0)),  # 6
    Part.LineSegment(App.Vector(58.8, -15.4, 0), App.Vector(58.8, 2.6, 0)),  # 7
    Part.LineSegment(App.Vector(58.8, 2.6, 0), App.Vector(46.8, 2.6, 0)),  # 8
    Part.Circle(App.Vector(51.3, -6.4, 0), App.Vector(0, 0, 1), 3.2),  # 9
], False)
sketch12.addConstraint([
    Sketcher.Constraint("Coincident", 0, 2, 1, 1),
    Sketcher.Constraint("Coincident", 1, 2, 2, 1),
    Sketcher.Constraint("Coincident", 2, 2, 3, 1),
    Sketcher.Constraint("Coincident", 3, 2, 0, 1),
    Sketcher.Constraint("Coincident", 5, 2, 6, 1),
    Sketcher.Constraint("Coincident", 6, 2, 7, 1),
    Sketcher.Constraint("Coincident", 7, 2, 8, 1),
    Sketcher.Constraint("Coincident", 8, 2, 5, 1),
    Sketcher.Constraint("Vertical", 0),
    Sketcher.Constraint("Horizontal", 1),
    Sketcher.Constraint("Vertical", 2),
    Sketcher.Constraint("Horizontal", 3),
    Sketcher.Constraint("Vertical", 5),
    Sketcher.Constraint("Horizontal", 6),
    Sketcher.Constraint("Vertical", 7),
    Sketcher.Constraint("Horizontal", 8),
    Sketcher.Constraint("Equal", 4, 9),
    Sketcher.Constraint("Horizontal", 4, 3, 9, 3),
    Sketcher.Constraint("Horizontal", 1, 2, 5, 2),
    Sketcher.Constraint("Horizontal", 3, 2, 7, 2),
    Sketcher.Constraint("Equal", 3, 6),
    Sketcher.Constraint("Diameter", 4, 6.5),
    Sketcher.Constraint("DistanceX", 1, 1, 1, 2, 12.0),
    Sketcher.Constraint("DistanceY", 0, 2, 0, 1, 18.0),
    Sketcher.Constraint("DistanceX", 4, 3, 9, 3, 117.0),
    Sketcher.Constraint("DistanceY", 0, 2, 4, 3, 9.0),
    Sketcher.Constraint("DistanceX", 1, 2, 5, 2, 108.0),
    Sketcher.Constraint("DistanceX", 0, 2, 4, 3, 7.5),
    Sketcher.Constraint("DistanceX", 4, 3, -1, 1, 65.731066),
    Sketcher.Constraint("DistanceY", 4, 3, -1, 1, 6.378486),
])
pad5 = body.newObject("PartDesign::Pad", "Pad004")
pad5.Profile = sketch12
pad5.Length = 20.05
pad5.Reversed = True
doc.recompute()

fillet = body.newObject("PartDesign::Fillet", "Fillet")
fillet.Base = (pad5, edges_at(pad5, [
    (-73.231, -7.025, -15.378),
    (-73.231, -7.025, 2.622),
    (58.769, -7.025, -15.378),
    (58.769, -7.025, 2.622),
]))
fillet.Radius = 2

doc.recompute()
